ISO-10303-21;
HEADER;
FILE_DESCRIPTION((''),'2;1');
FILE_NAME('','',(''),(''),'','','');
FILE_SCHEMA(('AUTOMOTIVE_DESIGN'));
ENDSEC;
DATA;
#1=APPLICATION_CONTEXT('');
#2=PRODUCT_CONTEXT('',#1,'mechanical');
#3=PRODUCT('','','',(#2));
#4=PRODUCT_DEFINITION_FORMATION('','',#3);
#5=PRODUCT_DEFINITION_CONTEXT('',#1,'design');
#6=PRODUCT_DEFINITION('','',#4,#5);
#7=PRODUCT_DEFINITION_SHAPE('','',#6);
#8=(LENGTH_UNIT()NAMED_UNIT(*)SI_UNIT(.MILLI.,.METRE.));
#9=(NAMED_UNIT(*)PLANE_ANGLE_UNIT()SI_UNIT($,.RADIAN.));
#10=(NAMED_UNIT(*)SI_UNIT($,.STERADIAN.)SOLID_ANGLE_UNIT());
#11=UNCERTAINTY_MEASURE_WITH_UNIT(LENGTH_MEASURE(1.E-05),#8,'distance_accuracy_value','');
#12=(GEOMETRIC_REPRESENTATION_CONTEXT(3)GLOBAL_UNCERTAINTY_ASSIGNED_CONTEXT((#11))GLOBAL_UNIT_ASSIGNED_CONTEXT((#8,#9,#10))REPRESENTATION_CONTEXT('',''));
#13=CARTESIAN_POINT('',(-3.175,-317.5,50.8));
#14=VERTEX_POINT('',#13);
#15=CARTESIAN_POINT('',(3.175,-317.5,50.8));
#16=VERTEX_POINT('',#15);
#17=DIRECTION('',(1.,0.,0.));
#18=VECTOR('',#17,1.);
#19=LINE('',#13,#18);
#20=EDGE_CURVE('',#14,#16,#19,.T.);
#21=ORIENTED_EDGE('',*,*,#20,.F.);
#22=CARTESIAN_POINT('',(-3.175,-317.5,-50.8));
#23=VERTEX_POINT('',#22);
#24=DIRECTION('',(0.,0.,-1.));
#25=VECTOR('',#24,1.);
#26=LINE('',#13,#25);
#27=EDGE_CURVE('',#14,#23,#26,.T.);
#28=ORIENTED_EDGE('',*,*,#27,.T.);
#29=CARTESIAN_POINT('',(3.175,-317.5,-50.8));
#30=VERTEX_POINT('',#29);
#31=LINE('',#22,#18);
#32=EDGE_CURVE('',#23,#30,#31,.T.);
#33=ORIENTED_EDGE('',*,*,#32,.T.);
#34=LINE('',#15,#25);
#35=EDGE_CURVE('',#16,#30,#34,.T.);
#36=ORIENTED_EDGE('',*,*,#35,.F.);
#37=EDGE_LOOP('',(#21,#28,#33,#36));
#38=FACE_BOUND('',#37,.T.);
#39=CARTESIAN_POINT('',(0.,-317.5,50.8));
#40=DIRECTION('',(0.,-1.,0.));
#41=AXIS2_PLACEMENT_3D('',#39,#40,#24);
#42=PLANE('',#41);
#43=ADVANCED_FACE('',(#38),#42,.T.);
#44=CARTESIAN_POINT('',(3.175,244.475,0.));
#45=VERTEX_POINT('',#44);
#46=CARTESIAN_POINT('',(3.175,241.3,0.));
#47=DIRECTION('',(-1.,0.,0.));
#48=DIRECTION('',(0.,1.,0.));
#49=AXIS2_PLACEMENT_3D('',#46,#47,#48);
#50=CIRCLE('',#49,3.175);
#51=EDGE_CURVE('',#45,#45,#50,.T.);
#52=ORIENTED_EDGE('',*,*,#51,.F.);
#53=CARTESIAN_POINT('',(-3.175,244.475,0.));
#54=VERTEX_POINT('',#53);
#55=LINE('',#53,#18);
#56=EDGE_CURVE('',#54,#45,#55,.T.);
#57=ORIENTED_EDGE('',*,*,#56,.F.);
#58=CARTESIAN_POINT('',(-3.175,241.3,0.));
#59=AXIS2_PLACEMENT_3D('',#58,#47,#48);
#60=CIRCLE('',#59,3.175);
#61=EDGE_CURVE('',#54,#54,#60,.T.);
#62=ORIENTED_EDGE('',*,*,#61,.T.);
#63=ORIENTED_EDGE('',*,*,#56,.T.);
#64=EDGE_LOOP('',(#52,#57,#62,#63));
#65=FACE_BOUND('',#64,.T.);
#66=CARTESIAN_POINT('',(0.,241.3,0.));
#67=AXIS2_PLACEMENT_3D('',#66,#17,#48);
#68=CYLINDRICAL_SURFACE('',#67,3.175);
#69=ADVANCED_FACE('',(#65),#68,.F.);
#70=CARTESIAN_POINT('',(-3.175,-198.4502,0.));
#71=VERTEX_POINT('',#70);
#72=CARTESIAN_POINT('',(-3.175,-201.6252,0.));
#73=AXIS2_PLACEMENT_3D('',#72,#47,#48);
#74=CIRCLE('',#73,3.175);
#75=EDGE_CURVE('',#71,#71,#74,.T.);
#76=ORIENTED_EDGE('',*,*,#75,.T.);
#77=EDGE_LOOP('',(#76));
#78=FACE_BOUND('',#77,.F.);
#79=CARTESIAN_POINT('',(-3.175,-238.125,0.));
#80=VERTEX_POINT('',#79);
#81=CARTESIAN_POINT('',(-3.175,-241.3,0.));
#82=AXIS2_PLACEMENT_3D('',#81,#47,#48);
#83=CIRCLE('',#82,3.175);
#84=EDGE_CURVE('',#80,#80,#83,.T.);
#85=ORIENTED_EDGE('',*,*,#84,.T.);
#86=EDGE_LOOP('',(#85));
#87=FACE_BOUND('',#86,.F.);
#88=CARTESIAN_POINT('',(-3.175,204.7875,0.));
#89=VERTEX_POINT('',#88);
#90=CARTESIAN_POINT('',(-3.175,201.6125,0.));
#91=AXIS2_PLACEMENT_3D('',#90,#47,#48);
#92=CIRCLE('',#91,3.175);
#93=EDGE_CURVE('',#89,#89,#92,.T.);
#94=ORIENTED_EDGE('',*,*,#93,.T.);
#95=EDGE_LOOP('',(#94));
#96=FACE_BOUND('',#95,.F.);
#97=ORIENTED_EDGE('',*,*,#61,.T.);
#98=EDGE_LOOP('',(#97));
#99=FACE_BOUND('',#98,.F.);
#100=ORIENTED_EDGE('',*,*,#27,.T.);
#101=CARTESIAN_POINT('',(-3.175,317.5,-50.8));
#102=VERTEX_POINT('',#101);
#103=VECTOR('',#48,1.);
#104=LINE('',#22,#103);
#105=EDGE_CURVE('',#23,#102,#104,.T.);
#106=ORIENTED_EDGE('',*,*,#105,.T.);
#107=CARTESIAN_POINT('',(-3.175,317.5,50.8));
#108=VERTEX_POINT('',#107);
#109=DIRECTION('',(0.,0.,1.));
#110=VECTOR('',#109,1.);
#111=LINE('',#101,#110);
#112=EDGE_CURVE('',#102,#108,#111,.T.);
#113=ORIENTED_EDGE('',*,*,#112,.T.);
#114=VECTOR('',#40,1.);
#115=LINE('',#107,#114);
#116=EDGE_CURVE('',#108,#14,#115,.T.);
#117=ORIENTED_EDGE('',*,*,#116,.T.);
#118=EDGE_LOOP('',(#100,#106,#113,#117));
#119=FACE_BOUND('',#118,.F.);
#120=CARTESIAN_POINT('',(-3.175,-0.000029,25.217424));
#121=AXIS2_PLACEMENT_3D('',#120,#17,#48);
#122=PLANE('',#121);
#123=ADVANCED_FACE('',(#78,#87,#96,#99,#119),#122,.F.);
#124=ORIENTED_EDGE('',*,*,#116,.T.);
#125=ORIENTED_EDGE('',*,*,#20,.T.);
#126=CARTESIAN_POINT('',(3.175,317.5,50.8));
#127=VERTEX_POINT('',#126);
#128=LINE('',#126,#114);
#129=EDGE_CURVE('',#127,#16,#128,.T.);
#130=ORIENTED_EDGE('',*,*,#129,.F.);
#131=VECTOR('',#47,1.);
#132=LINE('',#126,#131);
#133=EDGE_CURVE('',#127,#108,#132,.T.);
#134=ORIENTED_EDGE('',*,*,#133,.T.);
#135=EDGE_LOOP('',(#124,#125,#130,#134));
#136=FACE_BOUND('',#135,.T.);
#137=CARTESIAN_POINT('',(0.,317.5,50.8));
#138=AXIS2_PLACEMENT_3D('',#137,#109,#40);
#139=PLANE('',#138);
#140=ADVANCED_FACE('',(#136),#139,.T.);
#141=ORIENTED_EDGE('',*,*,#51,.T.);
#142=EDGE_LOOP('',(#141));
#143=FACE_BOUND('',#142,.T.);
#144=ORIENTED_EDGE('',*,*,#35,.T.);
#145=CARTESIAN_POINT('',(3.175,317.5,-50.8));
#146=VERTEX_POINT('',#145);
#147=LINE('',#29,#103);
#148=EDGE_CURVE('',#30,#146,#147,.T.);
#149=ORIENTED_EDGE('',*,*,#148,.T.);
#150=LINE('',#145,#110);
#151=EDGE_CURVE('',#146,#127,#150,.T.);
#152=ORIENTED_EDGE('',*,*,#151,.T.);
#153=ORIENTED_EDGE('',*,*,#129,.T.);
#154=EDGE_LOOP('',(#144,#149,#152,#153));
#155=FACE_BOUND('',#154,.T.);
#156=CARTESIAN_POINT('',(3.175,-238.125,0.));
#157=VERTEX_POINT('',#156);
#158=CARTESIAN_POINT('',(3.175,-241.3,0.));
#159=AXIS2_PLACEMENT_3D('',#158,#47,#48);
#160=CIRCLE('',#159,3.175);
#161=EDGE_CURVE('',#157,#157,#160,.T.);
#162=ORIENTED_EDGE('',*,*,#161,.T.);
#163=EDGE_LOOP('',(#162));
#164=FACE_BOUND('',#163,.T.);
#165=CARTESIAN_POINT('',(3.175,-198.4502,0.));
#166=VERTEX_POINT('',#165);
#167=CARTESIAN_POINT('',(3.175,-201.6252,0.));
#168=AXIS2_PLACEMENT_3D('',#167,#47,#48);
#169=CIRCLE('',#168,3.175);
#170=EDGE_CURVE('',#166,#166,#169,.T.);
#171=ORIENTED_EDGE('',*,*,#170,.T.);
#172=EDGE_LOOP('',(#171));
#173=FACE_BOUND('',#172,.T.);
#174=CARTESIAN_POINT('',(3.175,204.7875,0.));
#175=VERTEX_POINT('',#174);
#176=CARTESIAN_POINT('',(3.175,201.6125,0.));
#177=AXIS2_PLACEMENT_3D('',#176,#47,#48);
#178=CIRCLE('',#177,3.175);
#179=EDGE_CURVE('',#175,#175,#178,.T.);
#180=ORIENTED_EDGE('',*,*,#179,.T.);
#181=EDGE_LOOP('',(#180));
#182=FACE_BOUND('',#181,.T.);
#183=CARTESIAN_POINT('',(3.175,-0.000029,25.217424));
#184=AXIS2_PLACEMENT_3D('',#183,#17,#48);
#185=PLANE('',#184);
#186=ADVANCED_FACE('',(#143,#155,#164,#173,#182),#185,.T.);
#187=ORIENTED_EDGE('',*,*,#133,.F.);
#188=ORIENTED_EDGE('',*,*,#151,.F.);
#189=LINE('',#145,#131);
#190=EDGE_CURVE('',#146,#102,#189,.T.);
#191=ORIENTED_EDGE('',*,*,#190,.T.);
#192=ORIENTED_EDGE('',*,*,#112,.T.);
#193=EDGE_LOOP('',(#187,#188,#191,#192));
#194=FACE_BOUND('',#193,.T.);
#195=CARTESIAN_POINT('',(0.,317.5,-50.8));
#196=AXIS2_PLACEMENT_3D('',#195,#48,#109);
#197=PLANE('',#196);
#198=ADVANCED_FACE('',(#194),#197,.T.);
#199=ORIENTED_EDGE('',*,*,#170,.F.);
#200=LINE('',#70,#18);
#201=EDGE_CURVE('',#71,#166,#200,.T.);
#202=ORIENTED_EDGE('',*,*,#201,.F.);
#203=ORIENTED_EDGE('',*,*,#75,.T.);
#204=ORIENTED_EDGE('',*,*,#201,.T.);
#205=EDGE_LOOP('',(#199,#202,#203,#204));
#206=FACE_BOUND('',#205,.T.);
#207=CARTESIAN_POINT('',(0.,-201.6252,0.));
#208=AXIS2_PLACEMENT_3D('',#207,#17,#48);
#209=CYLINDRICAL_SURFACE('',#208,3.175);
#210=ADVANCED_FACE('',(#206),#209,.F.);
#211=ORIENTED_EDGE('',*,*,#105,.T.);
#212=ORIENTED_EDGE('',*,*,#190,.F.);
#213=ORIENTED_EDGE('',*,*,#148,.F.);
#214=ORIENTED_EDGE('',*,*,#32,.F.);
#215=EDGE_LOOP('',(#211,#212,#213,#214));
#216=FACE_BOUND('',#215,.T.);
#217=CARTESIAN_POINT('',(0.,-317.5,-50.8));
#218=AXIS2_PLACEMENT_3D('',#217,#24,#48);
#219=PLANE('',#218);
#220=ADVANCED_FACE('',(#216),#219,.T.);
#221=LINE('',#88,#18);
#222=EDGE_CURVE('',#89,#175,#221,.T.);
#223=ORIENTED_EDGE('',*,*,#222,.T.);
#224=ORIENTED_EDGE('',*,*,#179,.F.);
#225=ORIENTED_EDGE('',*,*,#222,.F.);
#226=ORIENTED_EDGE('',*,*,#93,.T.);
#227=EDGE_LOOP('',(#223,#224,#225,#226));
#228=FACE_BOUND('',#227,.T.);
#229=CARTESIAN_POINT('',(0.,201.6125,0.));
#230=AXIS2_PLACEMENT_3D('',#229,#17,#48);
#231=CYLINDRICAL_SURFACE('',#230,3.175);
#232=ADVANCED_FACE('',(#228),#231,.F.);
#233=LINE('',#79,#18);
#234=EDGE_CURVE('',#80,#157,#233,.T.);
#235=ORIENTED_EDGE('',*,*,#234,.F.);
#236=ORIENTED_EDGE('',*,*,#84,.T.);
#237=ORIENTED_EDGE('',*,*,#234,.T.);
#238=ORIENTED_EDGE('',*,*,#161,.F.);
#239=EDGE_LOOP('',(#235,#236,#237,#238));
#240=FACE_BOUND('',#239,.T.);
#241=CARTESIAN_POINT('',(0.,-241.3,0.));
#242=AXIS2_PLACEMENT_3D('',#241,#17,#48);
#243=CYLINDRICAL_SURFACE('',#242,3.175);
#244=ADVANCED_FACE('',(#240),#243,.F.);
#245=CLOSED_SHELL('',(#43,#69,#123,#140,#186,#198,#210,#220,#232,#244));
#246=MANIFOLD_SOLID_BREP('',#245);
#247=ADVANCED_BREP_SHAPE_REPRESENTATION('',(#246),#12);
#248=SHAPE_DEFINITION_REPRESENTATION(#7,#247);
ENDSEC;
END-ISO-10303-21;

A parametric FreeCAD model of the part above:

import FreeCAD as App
import Part
import Sketcher
Q = App.Units.Quantity


def add_polygon(sketch, points):
    """Adds a closed chain of lines whose ends are joined by coincident constraints."""
    first, n = sketch.GeometryCount, len(points)
    for a, b in zip(points, points[1:] + points[:1]):
        sketch.addGeometry(Part.LineSegment(App.Vector(*a, 0), App.Vector(*b, 0)), False)
    for i in range(n):
        sketch.addConstraint(Sketcher.Constraint("Coincident", first + i, 2, first + (i + 1) % n, 1))

doc = App.newDocument("Part")
body = doc.addObject("PartDesign::Body", "Body")

# Sketch on YZ plane
sketch1 = body.newObject("Sketcher::SketchObject", "Sketch")
sketch1.AttachmentSupport = (doc.getObject("YZ_Plane"), [""])
sketch1.MapMode = "FlatFace"
add_polygon(sketch1, [(317.5, 50.8), (-317.5, 50.8), (-317.5, -50.8), (317.5, -50.8)])  # lines 0-3
sketch1.addGeometry(Part.Circle(App.Vector(-241.3, 0, 0), App.Vector(0, 0, 1), 3.2), False)  # 4
sketch1.addGeometry(Part.Circle(App.Vector(-201.6, 0, 0), App.Vector(0, 0, 1), 3.2), False)  # 5
sketch1.addGeometry(Part.Circle(App.Vector(201.6, 0, 0), App.Vector(0, 0, 1), 3.2), False)  # 6
sketch1.addGeometry(Part.Circle(App.Vector(241.3, 0, 0), App.Vector(0, 0, 1), 3.2), False)  # 7
sketch1.addConstraint(Sketcher.Constraint("Horizontal", 0))
sketch1.addConstraint(Sketcher.Constraint("Vertical", 1))
sketch1.addConstraint(Sketcher.Constraint("Horizontal", 2))
sketch1.addConstraint(Sketcher.Constraint("Vertical", 3))
sketch1.addConstraint(Sketcher.Constraint("Equal", 4, 5))
sketch1.addConstraint(Sketcher.Constraint("Equal", 5, 6))
sketch1.addConstraint(Sketcher.Constraint("Equal", 6, 7))
sketch1.addConstraint(Sketcher.Constraint("Symmetric", 4, 3, 7, 3, -1, 1))
sketch1.addConstraint(Sketcher.Constraint("Symmetric", 0, 2, 2, 2, -1, 1))
sketch1.addConstraint(Sketcher.Constraint("PointOnObject", 4, 3, -1))
sketch1.addConstraint(Sketcher.Constraint("PointOnObject", 5, 3, -1))
sketch1.addConstraint(Sketcher.Constraint("PointOnObject", 6, 3, -1))
sketch1.addConstraint(Sketcher.Constraint("Diameter", 4, Q("0.25 in")))
sketch1.addConstraint(Sketcher.Constraint("DistanceX", 0, 2, 0, 1, Q("25 in")))
sketch1.addConstraint(Sketcher.Constraint("DistanceY", 1, 2, 1, 1, Q("4 in")))
sketch1.addConstraint(Sketcher.Constraint("DistanceX", 4, 3, 7, 3, Q("19 in")))
sketch1.addConstraint(Sketcher.Constraint("DistanceX", 5, 3, -1, 1, Q("7.938 in")))
sketch1.addConstraint(Sketcher.Constraint("DistanceX", -1, 1, 6, 3, Q("7.9375 in")))
pad1 = body.newObject("PartDesign::Pad", "Pad")
pad1.Profile = sketch1
pad1.Length = Q("0.25 in")
pad1.Midplane = True

doc.recompute()
